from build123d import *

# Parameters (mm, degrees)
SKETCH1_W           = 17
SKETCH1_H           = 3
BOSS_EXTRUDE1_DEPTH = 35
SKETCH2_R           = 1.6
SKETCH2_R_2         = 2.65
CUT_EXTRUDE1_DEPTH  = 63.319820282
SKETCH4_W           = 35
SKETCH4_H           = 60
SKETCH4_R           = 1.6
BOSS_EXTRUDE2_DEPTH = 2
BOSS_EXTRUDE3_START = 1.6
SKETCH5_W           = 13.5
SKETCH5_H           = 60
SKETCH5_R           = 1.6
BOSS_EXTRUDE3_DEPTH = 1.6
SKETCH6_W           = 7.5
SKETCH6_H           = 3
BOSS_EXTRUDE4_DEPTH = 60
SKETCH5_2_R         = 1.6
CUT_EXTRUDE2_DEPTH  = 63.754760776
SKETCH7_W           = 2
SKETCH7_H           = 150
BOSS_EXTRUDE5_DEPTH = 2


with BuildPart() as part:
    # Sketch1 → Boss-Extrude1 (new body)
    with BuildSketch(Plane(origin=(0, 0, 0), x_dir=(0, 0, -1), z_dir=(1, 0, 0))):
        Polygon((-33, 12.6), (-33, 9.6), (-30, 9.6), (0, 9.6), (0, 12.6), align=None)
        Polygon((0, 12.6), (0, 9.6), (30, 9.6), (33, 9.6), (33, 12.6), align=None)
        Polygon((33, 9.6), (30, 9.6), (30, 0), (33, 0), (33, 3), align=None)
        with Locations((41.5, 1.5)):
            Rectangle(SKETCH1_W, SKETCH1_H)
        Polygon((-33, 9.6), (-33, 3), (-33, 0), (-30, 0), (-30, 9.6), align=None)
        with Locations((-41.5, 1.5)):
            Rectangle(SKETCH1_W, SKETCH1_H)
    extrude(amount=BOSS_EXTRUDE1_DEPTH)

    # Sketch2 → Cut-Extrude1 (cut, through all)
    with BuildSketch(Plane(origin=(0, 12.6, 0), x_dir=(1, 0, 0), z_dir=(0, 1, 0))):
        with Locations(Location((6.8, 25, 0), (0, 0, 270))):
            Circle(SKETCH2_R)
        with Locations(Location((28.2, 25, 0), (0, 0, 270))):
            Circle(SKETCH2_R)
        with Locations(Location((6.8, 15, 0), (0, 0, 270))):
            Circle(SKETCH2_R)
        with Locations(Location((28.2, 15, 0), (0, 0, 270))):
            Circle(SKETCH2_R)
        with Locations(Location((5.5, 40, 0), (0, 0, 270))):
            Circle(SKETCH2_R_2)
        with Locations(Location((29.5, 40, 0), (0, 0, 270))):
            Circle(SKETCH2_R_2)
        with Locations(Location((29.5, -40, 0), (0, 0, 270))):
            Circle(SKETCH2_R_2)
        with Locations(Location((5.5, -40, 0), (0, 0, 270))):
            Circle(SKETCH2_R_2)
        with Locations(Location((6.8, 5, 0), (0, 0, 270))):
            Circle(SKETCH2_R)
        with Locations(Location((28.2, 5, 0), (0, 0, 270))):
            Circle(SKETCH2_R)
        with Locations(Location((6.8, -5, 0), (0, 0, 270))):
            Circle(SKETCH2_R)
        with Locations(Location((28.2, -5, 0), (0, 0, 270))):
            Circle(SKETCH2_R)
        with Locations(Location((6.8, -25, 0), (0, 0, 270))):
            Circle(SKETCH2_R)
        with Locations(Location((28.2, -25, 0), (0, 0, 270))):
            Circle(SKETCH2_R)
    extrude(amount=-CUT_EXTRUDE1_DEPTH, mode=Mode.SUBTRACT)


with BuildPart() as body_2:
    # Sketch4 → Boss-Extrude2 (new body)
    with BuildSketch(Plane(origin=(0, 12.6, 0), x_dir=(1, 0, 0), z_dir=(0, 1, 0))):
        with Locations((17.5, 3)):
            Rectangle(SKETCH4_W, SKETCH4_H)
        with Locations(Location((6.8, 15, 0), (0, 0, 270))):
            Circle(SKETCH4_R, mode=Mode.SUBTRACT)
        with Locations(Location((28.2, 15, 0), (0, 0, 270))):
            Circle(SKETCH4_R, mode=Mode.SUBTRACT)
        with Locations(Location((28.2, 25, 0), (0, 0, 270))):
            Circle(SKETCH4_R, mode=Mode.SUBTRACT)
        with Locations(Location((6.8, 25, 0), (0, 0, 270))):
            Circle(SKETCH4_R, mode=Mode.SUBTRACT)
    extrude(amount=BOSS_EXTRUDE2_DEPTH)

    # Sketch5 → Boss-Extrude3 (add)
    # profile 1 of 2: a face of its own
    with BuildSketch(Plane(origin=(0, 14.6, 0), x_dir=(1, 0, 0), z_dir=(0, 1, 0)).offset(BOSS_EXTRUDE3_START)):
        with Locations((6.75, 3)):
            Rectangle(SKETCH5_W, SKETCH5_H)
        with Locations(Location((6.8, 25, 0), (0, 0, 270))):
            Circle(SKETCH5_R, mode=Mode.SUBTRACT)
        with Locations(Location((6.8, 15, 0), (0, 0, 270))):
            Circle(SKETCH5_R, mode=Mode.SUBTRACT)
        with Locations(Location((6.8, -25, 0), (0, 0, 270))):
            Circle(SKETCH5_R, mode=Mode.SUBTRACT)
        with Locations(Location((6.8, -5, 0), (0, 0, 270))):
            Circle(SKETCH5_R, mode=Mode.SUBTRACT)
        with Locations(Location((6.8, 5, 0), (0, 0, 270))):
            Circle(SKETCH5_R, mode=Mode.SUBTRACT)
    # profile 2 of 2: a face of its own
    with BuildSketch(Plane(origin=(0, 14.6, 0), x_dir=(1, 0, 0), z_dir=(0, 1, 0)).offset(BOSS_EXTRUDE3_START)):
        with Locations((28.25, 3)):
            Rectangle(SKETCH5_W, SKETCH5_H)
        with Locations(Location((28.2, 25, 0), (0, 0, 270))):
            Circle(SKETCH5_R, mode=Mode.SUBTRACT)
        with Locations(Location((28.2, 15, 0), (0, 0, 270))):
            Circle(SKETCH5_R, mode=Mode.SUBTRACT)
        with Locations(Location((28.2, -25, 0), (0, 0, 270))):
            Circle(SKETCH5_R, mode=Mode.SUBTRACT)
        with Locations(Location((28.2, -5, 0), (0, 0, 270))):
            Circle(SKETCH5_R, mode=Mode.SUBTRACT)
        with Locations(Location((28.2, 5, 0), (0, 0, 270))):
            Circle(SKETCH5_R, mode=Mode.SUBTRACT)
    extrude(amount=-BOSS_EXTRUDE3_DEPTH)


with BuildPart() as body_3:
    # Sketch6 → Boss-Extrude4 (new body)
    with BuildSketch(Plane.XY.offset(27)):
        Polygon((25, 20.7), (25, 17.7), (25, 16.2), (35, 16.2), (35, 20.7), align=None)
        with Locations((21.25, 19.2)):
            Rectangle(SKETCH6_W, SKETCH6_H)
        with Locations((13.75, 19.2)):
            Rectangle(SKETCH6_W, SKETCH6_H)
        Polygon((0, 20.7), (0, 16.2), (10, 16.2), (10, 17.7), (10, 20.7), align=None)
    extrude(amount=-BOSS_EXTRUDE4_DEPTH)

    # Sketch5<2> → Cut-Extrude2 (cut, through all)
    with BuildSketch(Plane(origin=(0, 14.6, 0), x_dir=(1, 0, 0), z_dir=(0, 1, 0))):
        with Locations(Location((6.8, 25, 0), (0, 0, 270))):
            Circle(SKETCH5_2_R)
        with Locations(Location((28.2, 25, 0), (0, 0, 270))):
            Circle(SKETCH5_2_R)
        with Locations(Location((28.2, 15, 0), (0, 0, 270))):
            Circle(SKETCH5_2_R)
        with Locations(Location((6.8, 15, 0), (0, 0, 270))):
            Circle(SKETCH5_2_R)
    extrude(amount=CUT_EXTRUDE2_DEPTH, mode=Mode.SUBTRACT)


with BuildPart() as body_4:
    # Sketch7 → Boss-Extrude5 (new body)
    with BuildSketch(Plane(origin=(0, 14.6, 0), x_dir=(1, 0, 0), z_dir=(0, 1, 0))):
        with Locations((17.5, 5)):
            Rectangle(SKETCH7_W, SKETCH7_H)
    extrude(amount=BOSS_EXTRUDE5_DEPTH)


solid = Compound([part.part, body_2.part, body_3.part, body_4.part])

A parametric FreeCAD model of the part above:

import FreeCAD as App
import Part
import Sketcher
from FreeCAD import Vector

doc = App.newDocument("Part")
body = doc.addObject("PartDesign::Body", "Body")

# Sketch on YZ plane
sketch1 = doc.addObject("Sketcher::SketchObject", "Sketch")
body.addObject(sketch1)
sketch1.AttachmentSupport = (doc.YZ_Plane, [""])
sketch1.MapMode = "FlatFace"
sketch1.addGeometry([
    Part.LineSegment(Vector(12.6, 33, 0), Vector(3, 33, 0)),  # 0
    Part.LineSegment(Vector(3, 33, 0), Vector(3, 50, 0)),  # 1
    Part.LineSegment(Vector(3, 50, 0), Vector(0, 50, 0)),  # 2
    Part.LineSegment(Vector(0, 50, 0), Vector(0, 30, 0)),  # 3
    Part.LineSegment(Vector(0, 30, 0), Vector(9.6, 30, 0)),  # 4
    Part.LineSegment(Vector(9.6, 30, 0), Vector(9.6, -30, 0)),  # 5
    Part.LineSegment(Vector(9.6, -30, 0), Vector(0, -30, 0)),  # 6
    Part.LineSegment(Vector(0, -30, 0), Vector(0, -50, 0)),  # 7
    Part.LineSegment(Vector(0, -50, 0), Vector(3, -50, 0)),  # 8
    Part.LineSegment(Vector(3, -50, 0), Vector(3, -33, 0)),  # 9
    Part.LineSegment(Vector(3, -33, 0), Vector(12.6, -33, 0)),  # 10
    Part.LineSegment(Vector(12.6, -33, 0), Vector(12.6, 33, 0)),  # 11
], False)
sketch1.addConstraint([
    Sketcher.Constraint("Coincident", 0, 2, 1, 1),
    Sketcher.Constraint("Coincident", 1, 2, 2, 1),
    Sketcher.Constraint("Coincident", 2, 2, 3, 1),
    Sketcher.Constraint("Coincident", 3, 2, 4, 1),
    Sketcher.Constraint("Coincident", 4, 2, 5, 1),
    Sketcher.Constraint("Coincident", 5, 2, 6, 1),
    Sketcher.Constraint("Coincident", 6, 2, 7, 1),
    Sketcher.Constraint("Coincident", 7, 2, 8, 1),
    Sketcher.Constraint("Coincident", 8, 2, 9, 1),
    Sketcher.Constraint("Coincident", 9, 2, 10, 1),
    Sketcher.Constraint("Coincident", 10, 2, 11, 1),
    Sketcher.Constraint("Coincident", 11, 2, 0, 1),
    Sketcher.Constraint("Horizontal", 0),
    Sketcher.Constraint("Vertical", 1),
    Sketcher.Constraint("Horizontal", 2),
    Sketcher.Constraint("Vertical", 3),
    Sketcher.Constraint("Horizontal", 4),
    Sketcher.Constraint("Vertical", 5),
    Sketcher.Constraint("Horizontal", 6),
    Sketcher.Constraint("Vertical", 7),
    Sketcher.Constraint("Horizontal", 8),
    Sketcher.Constraint("Vertical", 9),
    Sketcher.Constraint("Horizontal", 10),
    Sketcher.Constraint("Vertical", 11),
    Sketcher.Constraint("Symmetric", 3, 2, 6, 2, -1, 1),
    Sketcher.Constraint("Symmetric", 2, 2, 7, 2, -1),
    Sketcher.Constraint("Symmetric", 0, 2, 9, 2, -1),
    Sketcher.Constraint("Equal", 0, 4),
    Sketcher.Constraint("DistanceX", 2, 2, 2, 1, 3.0),
    Sketcher.Constraint("DistanceY", 1, 1, 1, 2, 17.0),
    Sketcher.Constraint("DistanceY", 3, 2, 3, 1, 20.0),
    Sketcher.Constraint("DistanceY", 5, 2, 5, 1, 60.0),
    Sketcher.Constraint("DistanceX", 0, 2, 0, 1, 9.6),
])
pad1 = doc.addObject("PartDesign::Pad", "Pad")
body.addObject(pad1)
pad1.Profile = sketch1
pad1.Length = 35

# Sketch on XZ plane
sketch2 = doc.addObject("Sketcher::SketchObject", "Sketch001")
body.addObject(sketch2)
sketch2.AttachmentSupport = (doc.XZ_Plane, [""])
sketch2.MapMode = "FlatFace"
sketch2.AttachmentOffset = App.Placement(Vector(0, 0, -12.6), App.Rotation())
sketch2.addGeometry([
    Part.Circle(Vector(6.8, -25, 0), Vector(0, 0, 1), 1.6),  # 0
    Part.Circle(Vector(28.2, -25, 0), Vector(0, 0, 1), 1.6),  # 1
    Part.Circle(Vector(6.8, -15, 0), Vector(0, 0, 1), 1.6),  # 2
    Part.Circle(Vector(28.2, -15, 0), Vector(0, 0, 1), 1.6),  # 3
    Part.Circle(Vector(5.5, -40, 0), Vector(0, 0, 1), 2.6),  # 4
    Part.Circle(Vector(29.5, -40, 0), Vector(0, 0, 1), 2.6),  # 5
    Part.Circle(Vector(29.5, 40, 0), Vector(0, 0, 1), 2.6),  # 6
    Part.Circle(Vector(5.5, 40, 0), Vector(0, 0, 1), 2.6),  # 7
    Part.Circle(Vector(6.8, -5, 0), Vector(0, 0, 1), 1.6),  # 8
    Part.Circle(Vector(28.2, -5, 0), Vector(0, 0, 1), 1.6),  # 9
    Part.Circle(Vector(6.8, 5, 0), Vector(0, 0, 1), 1.6),  # 10
    Part.Circle(Vector(28.2, 5, 0), Vector(0, 0, 1), 1.6),  # 11
    Part.Circle(Vector(6.8, 25, 0), Vector(0, 0, 1), 1.6),  # 12
    Part.Circle(Vector(28.2, 25, 0), Vector(0, 0, 1), 1.6),  # 13
], False)
sketch2.addConstraint([
    Sketcher.Constraint("Equal", 0, 1),
    Sketcher.Constraint("Equal", 1, 2),
    Sketcher.Constraint("Equal", 2, 3),
    Sketcher.Constraint("Equal", 4, 5),
    Sketcher.Constraint("Equal", 5, 6),
    Sketcher.Constraint("Equal", 6, 7),
    Sketcher.Constraint("Equal", 3, 8),
    Sketcher.Constraint("Equal", 8, 9),
    Sketcher.Constraint("Equal", 9, 10),
    Sketcher.Constraint("Equal", 10, 11),
    Sketcher.Constraint("Equal", 11, 12),
    Sketcher.Constraint("Equal", 12, 13),
    Sketcher.Constraint("Symmetric", 5, 3, 6, 3, -1),
    Sketcher.Constraint("Symmetric", 4, 3, 7, 3, -1),
    Sketcher.Constraint("Symmetric", 8, 3, 10, 3, -1),
    Sketcher.Constraint("Symmetric", 9, 3, 11, 3, -1),
    Sketcher.Constraint("Symmetric", 0, 3, 12, 3, -1),
    Sketcher.Constraint("Symmetric", 1, 3, 13, 3, -1),
    Sketcher.Constraint("Horizontal", 0, 3, 1, 3),
    Sketcher.Constraint("Horizontal", 2, 3, 3, 3),
    Sketcher.Constraint("Horizontal", 4, 3, 5, 3),
    Sketcher.Constraint("Horizontal", 8, 3, 9, 3),
    Sketcher.Constraint("Vertical", 0, 3, 2, 3),
    Sketcher.Constraint("Vertical", 1, 3, 3, 3),
    Sketcher.Constraint("Vertical", 2, 3, 8, 3),
    Sketcher.Constraint("Vertical", 3, 3, 9, 3),
    Sketcher.Constraint("Diameter", 0, 3.2),
    Sketcher.Constraint("Diameter", 4, 5.3),
    Sketcher.Constraint("DistanceY", 0, 3, -1, 1, 25.0),
    Sketcher.Constraint("DistanceY", 2, 3, -1, 1, 15.0),
    Sketcher.Constraint("DistanceY", 4, 3, -1, 1, 40.0),
    Sketcher.Constraint("DistanceY", 8, 3, -1, 1, 5.0),
    Sketcher.Constraint("DistanceX", 4, 3, 5, 3, 24.0),
    Sketcher.Constraint("DistanceX", -1, 1, 0, 3, 6.8),
    Sketcher.Constraint("DistanceX", -1, 1, 1, 3, 28.2),
    Sketcher.Constraint("DistanceX", -1, 1, 4, 3, 5.5),
])
pocket1 = doc.addObject("PartDesign::Pocket", "Pocket")
body.addObject(pocket1)
pocket1.Profile = sketch2
pocket1.Type = "ThroughAll"
pocket1.Reversed = True
body2 = doc.addObject("PartDesign::Body", "Body001")

# Sketch on XZ plane
sketch3 = doc.addObject("Sketcher::SketchObject", "Sketch002")
body2.addObject(sketch3)
sketch3.AttachmentSupport = (doc.getObject("XZ_Plane001"), [""])
sketch3.MapMode = "FlatFace"
sketch3.AttachmentOffset = App.Placement(Vector(0, 0, -12.6), App.Rotation())
sketch3.addGeometry([
    Part.LineSegment(Vector(0, -33, 0), Vector(0, 27, 0)),  # 0
    Part.LineSegment(Vector(0, 27, 0), Vector(35, 27, 0)),  # 1
    Part.LineSegment(Vector(35, 27, 0), Vector(35, -33, 0)),  # 2
    Part.LineSegment(Vector(35, -33, 0), Vector(0, -33, 0)),  # 3
    Part.Circle(Vector(6.8, -15, 0), Vector(0, 0, 1), 1.6),  # 4
    Part.Circle(Vector(28.2, -15, 0), Vector(0, 0, 1), 1.6),  # 5
    Part.Circle(Vector(6.8, -25, 0), Vector(0, 0, 1), 1.6),  # 6
    Part.Circle(Vector(28.2, -25, 0), Vector(0, 0, 1), 1.6),  # 7
], False)
sketch3.addConstraint([
    Sketcher.Constraint("Coincident", 0, 2, 1, 1),
    Sketcher.Constraint("Coincident", 1, 2, 2, 1),
    Sketcher.Constraint("Coincident", 2, 2, 3, 1),
    Sketcher.Constraint("Coincident", 3, 2, 0, 1),
    Sketcher.Constraint("Vertical", 0),
    Sketcher.Constraint("Horizontal", 1),
    Sketcher.Constraint("Vertical", 2),
    Sketcher.Constraint("Horizontal", 3),
    Sketcher.Constraint("Equal", 4, 5),
    Sketcher.Constraint("Equal", 5, 6),
    Sketcher.Constraint("Equal", 6, 7),
    Sketcher.Constraint("PointOnObject", 0, 2, -2),
    Sketcher.Constraint("Horizontal", 4, 3, 5, 3),
    Sketcher.Constraint("Horizontal", 6, 3, 7, 3),
    Sketcher.Constraint("Vertical", 4, 3, 6, 3),
    Sketcher.Constraint("Vertical", 5, 3, 7, 3),
    Sketcher.Constraint("Diameter", 4, 3.2),
    Sketcher.Constraint("DistanceX", 1, 1, 1, 2, 35.0),
    Sketcher.Constraint("DistanceY", 0, 1, 0, 2, 60.0),
    Sketcher.Constraint("DistanceY", 4, 3, -1, 1, 15.0),
    Sketcher.Constraint("DistanceY", 6, 3, -1, 1, 25.0),
    Sketcher.Constraint("DistanceY", -1, 1, 0, 2, 27.0),
    Sketcher.Constraint("DistanceX", -1, 1, 4, 3, 6.8),
    Sketcher.Constraint("DistanceX", -1, 1, 5, 3, 28.2),
])
pad2 = doc.addObject("PartDesign::Pad", "Pad001")
body2.addObject(pad2)
pad2.Profile = sketch3
pad2.Length = 2
pad2.Reversed = True

# Sketch on XZ plane
sketch4 = doc.addObject("Sketcher::SketchObject", "Sketch003")
body2.addObject(sketch4)
sketch4.AttachmentSupport = (doc.getObject("XZ_Plane001"), [""])
sketch4.MapMode = "FlatFace"
sketch4.AttachmentOffset = App.Placement(Vector(0, 0, -16.2), App.Rotation())
sketch4.addGeometry([
    Part.LineSegment(Vector(0, -33, 0), Vector(0, 27, 0)),  # 0
    Part.LineSegment(Vector(0, 27, 0), Vector(13.5, 27, 0)),  # 1
    Part.LineSegment(Vector(13.5, 27, 0), Vector(13.5, -33, 0)),  # 2
    Part.LineSegment(Vector(13.5, -33, 0), Vector(0, -33, 0)),  # 3
    Part.Circle(Vector(6.8, 25, 0), Vector(0, 0, 1), 1.6),  # 4
    Part.Circle(Vector(6.8, 5, 0), Vector(0, 0, 1), 1.6),  # 5
    Part.Circle(Vector(6.8, -5, 0), Vector(0, 0, 1), 1.6),  # 6
    Part.Circle(Vector(6.8, -15, 0), Vector(0, 0, 1), 1.6),  # 7
    Part.Circle(Vector(6.8, -25, 0), Vector(0, 0, 1), 1.6),  # 8
    Part.LineSegment(Vector(21.5, -33, 0), Vector(21.5, 27, 0)),  # 9
    Part.LineSegment(Vector(21.5, 27, 0), Vector(35, 27, 0)),  # 10
    Part.LineSegment(Vector(35, 27, 0), Vector(35, -33, 0)),  # 11
    Part.LineSegment(Vector(35, -33, 0), Vector(21.5, -33, 0)),  # 12
    Part.Circle(Vector(28.2, 25, 0), Vector(0, 0, 1), 1.6),  # 13
    Part.Circle(Vector(28.2, 5, 0), Vector(0, 0, 1), 1.6),  # 14
    Part.Circle(Vector(28.2, -5, 0), Vector(0, 0, 1), 1.6),  # 15
    Part.Circle(Vector(28.2, -15, 0), Vector(0, 0, 1), 1.6),  # 16
    Part.Circle(Vector(28.2, -25, 0), Vector(0, 0, 1), 1.6),  # 17
], False)
sketch4.addConstraint([
    Sketcher.Constraint("Coincident", 0, 2, 1, 1),
    Sketcher.Constraint("Coincident", 1, 2, 2, 1),
    Sketcher.Constraint("Coincident", 2, 2, 3, 1),
    Sketcher.Constraint("Coincident", 3, 2, 0, 1),
    Sketcher.Constraint("Coincident", 9, 2, 10, 1),
    Sketcher.Constraint("Coincident", 10, 2, 11, 1),
    Sketcher.Constraint("Coincident", 11, 2, 12, 1),
    Sketcher.Constraint("Coincident", 12, 2, 9, 1),
    Sketcher.Constraint("Vertical", 0),
    Sketcher.Constraint("Horizontal", 1),
    Sketcher.Constraint("Vertical", 2),
    Sketcher.Constraint("Horizontal", 3),
    Sketcher.Constraint("Vertical", 9),
    Sketcher.Constraint("Horizontal", 10),
    Sketcher.Constraint("Vertical", 11),
    Sketcher.Constraint("Horizontal", 12),
    Sketcher.Constraint("Equal", 4, 5),
    Sketcher.Constraint("Equal", 5, 6),
    Sketcher.Constraint("Equal", 6, 7),
    Sketcher.Constraint("Equal", 7, 8),
    Sketcher.Constraint("Equal", 8, 13),
    Sketcher.Constraint("Equal", 13, 14),
    Sketcher.Constraint("Equal", 14, 15),
    Sketcher.Constraint("Equal", 15, 16),
    Sketcher.Constraint("Equal", 16, 17),
    Sketcher.Constraint("Symmetric", 5, 3, 6, 3, -1),
    Sketcher.Constraint("Symmetric", 4, 3, 8, 3, -1),
    Sketcher.Constraint("Symmetric", 14, 3, 15, 3, -1),
    Sketcher.Constraint("Symmetric", 13, 3, 17, 3, -1),
    Sketcher.Constraint("PointOnObject", 0, 2, -2),
    Sketcher.Constraint("Horizontal", 4, 3, 13, 3),
    Sketcher.Constraint("Horizontal", 5, 3, 14, 3),
    Sketcher.Constraint("Horizontal", 7, 3, 16, 3),
    Sketcher.Constraint("Horizontal", 1, 2, 9, 2),
    Sketcher.Constraint("Horizontal", 3, 2, 11, 2),
    Sketcher.Constraint("Vertical", 4, 3, 5, 3),
    Sketcher.Constraint("Vertical", 6, 3, 7, 3),
    Sketcher.Constraint("Vertical", 13, 3, 14, 3),
    Sketcher.Constraint("Vertical", 15, 3, 16, 3),
    Sketcher.Constraint("Equal", 3, 10),
    Sketcher.Constraint("Diameter", 4, 3.2),
    Sketcher.Constraint("DistanceY", 0, 1, 0, 2, 60.0),
    Sketcher.Constraint("DistanceX", 1, 1, 1, 2, 13.5),
    Sketcher.Constraint("DistanceY", -1, 1, 4, 3, 25.0),
    Sketcher.Constraint("DistanceY", -1, 1, 5, 3, 5.0),
    Sketcher.Constraint("DistanceY", 7, 3, -1, 1, 15.0),
    Sketcher.Constraint("DistanceY", -1, 1, 0, 2, 27.0),
    Sketcher.Constraint("DistanceX", -1, 1, 10, 2, 35.0),
    Sketcher.Constraint("DistanceX", -1, 1, 4, 3, 6.8),
    Sketcher.Constraint("DistanceX", -1, 1, 13, 3, 28.2),
])
pad3 = doc.addObject("PartDesign::Pad", "Pad002")
body2.addObject(pad3)
pad3.Profile = sketch4
pad3.Length = 1.6
body3 = doc.addObject("PartDesign::Body", "Body002")

# Sketch on XY plane
sketch5 = doc.addObject("Sketcher::SketchObject", "Sketch004")
body3.addObject(sketch5)
sketch5.AttachmentSupport = (doc.getObject("XY_Plane002"), [""])
sketch5.MapMode = "FlatFace"
sketch5.AttachmentOffset = App.Placement(Vector(0, 0, 27), App.Rotation())
sketch5.addGeometry([
    Part.LineSegment(Vector(25, 17.7, 0), Vector(25, 16.2, 0)),  # 0
    Part.LineSegment(Vector(25, 16.2, 0), Vector(35, 16.2, 0)),  # 1
    Part.LineSegment(Vector(35, 16.2, 0), Vector(35, 20.7, 0)),  # 2
    Part.LineSegment(Vector(35, 20.7, 0), Vector(0, 20.7, 0)),  # 3
    Part.LineSegment(Vector(0, 20.7, 0), Vector(0, 16.2, 0)),  # 4
    Part.LineSegment(Vector(0, 16.2, 0), Vector(10, 16.2, 0)),  # 5
    Part.LineSegment(Vector(10, 16.2, 0), Vector(10, 17.7, 0)),  # 6
    Part.LineSegment(Vector(10, 17.7, 0), Vector(25, 17.7, 0)),  # 7
], False)
sketch5.addConstraint([
    Sketcher.Constraint("Coincident", 0, 2, 1, 1),
    Sketcher.Constraint("Coincident", 1, 2, 2, 1),
    Sketcher.Constraint("Coincident", 2, 2, 3, 1),
    Sketcher.Constraint("Coincident", 3, 2, 4, 1),
    Sketcher.Constraint("Coincident", 4, 2, 5, 1),
    Sketcher.Constraint("Coincident", 5, 2, 6, 1),
    Sketcher.Constraint("Coincident", 6, 2, 7, 1),
    Sketcher.Constraint("Coincident", 7, 2, 0, 1),
    Sketcher.Constraint("Vertical", 0),
    Sketcher.Constraint("Horizontal", 1),
    Sketcher.Constraint("Vertical", 2),
    Sketcher.Constraint("Horizontal", 3),
    Sketcher.Constraint("Vertical", 4),
    Sketcher.Constraint("Horizontal", 5),
    Sketcher.Constraint("Vertical", 6),
    Sketcher.Constraint("Horizontal", 7),
    Sketcher.Constraint("PointOnObject", 3, 2, -2),
    Sketcher.Constraint("Horizontal", 1, 2, 4, 2),
    Sketcher.Constraint("Equal", 1, 5),
    Sketcher.Constraint("DistanceX", 1, 1, 1, 2, 10.0),
    Sketcher.Constraint("DistanceX", 3, 2, 3, 1, 35.0),
    Sketcher.Constraint("DistanceY", 0, 2, 0, 1, 1.5),
    Sketcher.Constraint("DistanceY", 2, 1, 2, 2, 4.5),
    Sketcher.Constraint("DistanceY", -1, 1, 0, 2, 16.2),
])
pad4 = doc.addObject("PartDesign::Pad", "Pad003")
body3.addObject(pad4)
pad4.Profile = sketch5
pad4.Length = 60
pad4.Reversed = True

# Sketch on XZ plane
sketch6 = doc.addObject("Sketcher::SketchObject", "Sketch005")
body3.addObject(sketch6)
sketch6.AttachmentSupport = (doc.getObject("XZ_Plane002"), [""])
sketch6.MapMode = "FlatFace"
sketch6.AttachmentOffset = App.Placement(Vector(0, 0, -14.6), App.Rotation())
sketch6.addGeometry([
    Part.Circle(Vector(6.8, -25, 0), Vector(0, 0, 1), 1.6),
    Part.Circle(Vector(28.2, -25, 0), Vector(0, 0, 1), 1.6),
    Part.Circle(Vector(28.2, -15, 0), Vector(0, 0, 1), 1.6),
    Part.Circle(Vector(6.8, -15, 0), Vector(0, 0, 1), 1.6),
], False)
sketch6.addConstraint([
    Sketcher.Constraint("Equal", 0, 1),
    Sketcher.Constraint("Equal", 1, 2),
    Sketcher.Constraint("Equal", 2, 3),
    Sketcher.Constraint("Horizontal", 0, 3, 1, 3),
    Sketcher.Constraint("Horizontal", 2, 3, 3, 3),
    Sketcher.Constraint("Vertical", 1, 3, 2, 3),
    Sketcher.Constraint("Vertical", 0, 3, 3, 3),
    Sketcher.Constraint("Diameter", 0, 3.2),
    Sketcher.Constraint("DistanceY", 0, 3, -1, 1, 25.0),
    Sketcher.Constraint("DistanceY", 2, 3, -1, 1, 15.0),
    Sketcher.Constraint("DistanceX", -1, 1, 0, 3, 6.8),
    Sketcher.Constraint("DistanceX", -1, 1, 1, 3, 28.2),
])
pocket2 = doc.addObject("PartDesign::Pocket", "Pocket001")
body3.addObject(pocket2)
pocket2.Profile = sketch6
pocket2.Type = "ThroughAll"
body4 = doc.addObject("PartDesign::Body", "Body003")

# Sketch on XZ plane
sketch7 = doc.addObject("Sketcher::SketchObject", "Sketch006")
body4.addObject(sketch7)
sketch7.AttachmentSupport = (doc.getObject("XZ_Plane003"), [""])
sketch7.MapMode = "FlatFace"
sketch7.AttachmentOffset = App.Placement(Vector(0, 0, -14.6), App.Rotation())
sketch7.addGeometry([
    Part.LineSegment(Vector(16.5, -80, 0), Vector(16.5, 70, 0)),
    Part.LineSegment(Vector(16.5, 70, 0), Vector(18.5, 70, 0)),
    Part.LineSegment(Vector(18.5, 70, 0), Vector(18.5, -80, 0)),
    Part.LineSegment(Vector(18.5, -80, 0), Vector(16.5, -80, 0)),
], False)
sketch7.addConstraint([
    Sketcher.Constraint("Coincident", 0, 2, 1, 1),
    Sketcher.Constraint("Coincident", 1, 2, 2, 1),
    Sketcher.Constraint("Coincident", 2, 2, 3, 1),
    Sketcher.Constraint("Coincident", 3, 2, 0, 1),
    Sketcher.Constraint("Vertical", 0),
    Sketcher.Constraint("Horizontal", 1),
    Sketcher.Constraint("Vertical", 2),
    Sketcher.Constraint("Horizontal", 3),
    Sketcher.Constraint("DistanceX", 1, 1, 1, 2, 2.0),
    Sketcher.Constraint("DistanceY", 0, 1, 0, 2, 150.0),
    Sketcher.Constraint("DistanceY", -1, 1, 0, 2, 70.0),
    Sketcher.Constraint("DistanceX", -1, 1, 0, 2, 16.5),
])
pad5 = doc.addObject("PartDesign::Pad", "Pad004")
body4.addObject(pad5)
pad5.Profile = sketch7
pad5.Length = 2
pad5.Reversed = True

doc.recompute()
